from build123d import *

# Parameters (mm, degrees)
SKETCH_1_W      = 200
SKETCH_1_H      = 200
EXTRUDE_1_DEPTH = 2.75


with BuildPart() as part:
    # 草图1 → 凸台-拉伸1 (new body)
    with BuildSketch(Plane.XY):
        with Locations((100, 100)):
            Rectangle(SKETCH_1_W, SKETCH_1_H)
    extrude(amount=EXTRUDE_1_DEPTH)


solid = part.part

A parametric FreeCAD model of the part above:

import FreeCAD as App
import Part
import Sketcher

V = App.Vector

doc = App.newDocument("Part")
body = doc.addObject("PartDesign::Body", "Body")

# Sketch on XY plane
sketch1 = doc.addObject("Sketcher::SketchObject", "Sketch")
body.addObject(sketch1)
sketch1.AttachmentSupport = (doc.XY_Plane, [""])
sketch1.MapMode = "FlatFace"
sketch1.addGeometry([
    Part.LineSegment(V(0, 200, 0), V(0, 0, 0)),
    Part.LineSegment(V(0, 0, 0), V(200, 0, 0)),
    Part.LineSegment(V(200, 0, 0), V(200, 200, 0)),
    Part.LineSegment(V(200, 200, 0), V(0, 200, 0)),
], False)
sketch1.addConstraint([
    Sketcher.Constraint("Coincident", 0, 2, 1, 1),
    Sketcher.Constraint("Coincident", 1, 2, 2, 1),
    Sketcher.Constraint("Coincident", 2, 2, 3, 1),
    Sketcher.Constraint("Coincident", 3, 2, 0, 1),
    Sketcher.Constraint("Vertical", 0),
    Sketcher.Constraint("Horizontal", 1),
    Sketcher.Constraint("Vertical", 2),
    Sketcher.Constraint("Horizontal", 3),
    Sketcher.Constraint("Coincident", 0, 2, -1, 1),
    Sketcher.Constraint("Equal", 3, 0),
    Sketcher.Constraint("DistanceX", 1, 1, 1, 2, 200.0),
])
pad1 = doc.addObject("PartDesign::Pad", "Pad")
body.addObject(pad1)
pad1.Profile = sketch1
pad1.Length = 2.75

doc.recompute()
